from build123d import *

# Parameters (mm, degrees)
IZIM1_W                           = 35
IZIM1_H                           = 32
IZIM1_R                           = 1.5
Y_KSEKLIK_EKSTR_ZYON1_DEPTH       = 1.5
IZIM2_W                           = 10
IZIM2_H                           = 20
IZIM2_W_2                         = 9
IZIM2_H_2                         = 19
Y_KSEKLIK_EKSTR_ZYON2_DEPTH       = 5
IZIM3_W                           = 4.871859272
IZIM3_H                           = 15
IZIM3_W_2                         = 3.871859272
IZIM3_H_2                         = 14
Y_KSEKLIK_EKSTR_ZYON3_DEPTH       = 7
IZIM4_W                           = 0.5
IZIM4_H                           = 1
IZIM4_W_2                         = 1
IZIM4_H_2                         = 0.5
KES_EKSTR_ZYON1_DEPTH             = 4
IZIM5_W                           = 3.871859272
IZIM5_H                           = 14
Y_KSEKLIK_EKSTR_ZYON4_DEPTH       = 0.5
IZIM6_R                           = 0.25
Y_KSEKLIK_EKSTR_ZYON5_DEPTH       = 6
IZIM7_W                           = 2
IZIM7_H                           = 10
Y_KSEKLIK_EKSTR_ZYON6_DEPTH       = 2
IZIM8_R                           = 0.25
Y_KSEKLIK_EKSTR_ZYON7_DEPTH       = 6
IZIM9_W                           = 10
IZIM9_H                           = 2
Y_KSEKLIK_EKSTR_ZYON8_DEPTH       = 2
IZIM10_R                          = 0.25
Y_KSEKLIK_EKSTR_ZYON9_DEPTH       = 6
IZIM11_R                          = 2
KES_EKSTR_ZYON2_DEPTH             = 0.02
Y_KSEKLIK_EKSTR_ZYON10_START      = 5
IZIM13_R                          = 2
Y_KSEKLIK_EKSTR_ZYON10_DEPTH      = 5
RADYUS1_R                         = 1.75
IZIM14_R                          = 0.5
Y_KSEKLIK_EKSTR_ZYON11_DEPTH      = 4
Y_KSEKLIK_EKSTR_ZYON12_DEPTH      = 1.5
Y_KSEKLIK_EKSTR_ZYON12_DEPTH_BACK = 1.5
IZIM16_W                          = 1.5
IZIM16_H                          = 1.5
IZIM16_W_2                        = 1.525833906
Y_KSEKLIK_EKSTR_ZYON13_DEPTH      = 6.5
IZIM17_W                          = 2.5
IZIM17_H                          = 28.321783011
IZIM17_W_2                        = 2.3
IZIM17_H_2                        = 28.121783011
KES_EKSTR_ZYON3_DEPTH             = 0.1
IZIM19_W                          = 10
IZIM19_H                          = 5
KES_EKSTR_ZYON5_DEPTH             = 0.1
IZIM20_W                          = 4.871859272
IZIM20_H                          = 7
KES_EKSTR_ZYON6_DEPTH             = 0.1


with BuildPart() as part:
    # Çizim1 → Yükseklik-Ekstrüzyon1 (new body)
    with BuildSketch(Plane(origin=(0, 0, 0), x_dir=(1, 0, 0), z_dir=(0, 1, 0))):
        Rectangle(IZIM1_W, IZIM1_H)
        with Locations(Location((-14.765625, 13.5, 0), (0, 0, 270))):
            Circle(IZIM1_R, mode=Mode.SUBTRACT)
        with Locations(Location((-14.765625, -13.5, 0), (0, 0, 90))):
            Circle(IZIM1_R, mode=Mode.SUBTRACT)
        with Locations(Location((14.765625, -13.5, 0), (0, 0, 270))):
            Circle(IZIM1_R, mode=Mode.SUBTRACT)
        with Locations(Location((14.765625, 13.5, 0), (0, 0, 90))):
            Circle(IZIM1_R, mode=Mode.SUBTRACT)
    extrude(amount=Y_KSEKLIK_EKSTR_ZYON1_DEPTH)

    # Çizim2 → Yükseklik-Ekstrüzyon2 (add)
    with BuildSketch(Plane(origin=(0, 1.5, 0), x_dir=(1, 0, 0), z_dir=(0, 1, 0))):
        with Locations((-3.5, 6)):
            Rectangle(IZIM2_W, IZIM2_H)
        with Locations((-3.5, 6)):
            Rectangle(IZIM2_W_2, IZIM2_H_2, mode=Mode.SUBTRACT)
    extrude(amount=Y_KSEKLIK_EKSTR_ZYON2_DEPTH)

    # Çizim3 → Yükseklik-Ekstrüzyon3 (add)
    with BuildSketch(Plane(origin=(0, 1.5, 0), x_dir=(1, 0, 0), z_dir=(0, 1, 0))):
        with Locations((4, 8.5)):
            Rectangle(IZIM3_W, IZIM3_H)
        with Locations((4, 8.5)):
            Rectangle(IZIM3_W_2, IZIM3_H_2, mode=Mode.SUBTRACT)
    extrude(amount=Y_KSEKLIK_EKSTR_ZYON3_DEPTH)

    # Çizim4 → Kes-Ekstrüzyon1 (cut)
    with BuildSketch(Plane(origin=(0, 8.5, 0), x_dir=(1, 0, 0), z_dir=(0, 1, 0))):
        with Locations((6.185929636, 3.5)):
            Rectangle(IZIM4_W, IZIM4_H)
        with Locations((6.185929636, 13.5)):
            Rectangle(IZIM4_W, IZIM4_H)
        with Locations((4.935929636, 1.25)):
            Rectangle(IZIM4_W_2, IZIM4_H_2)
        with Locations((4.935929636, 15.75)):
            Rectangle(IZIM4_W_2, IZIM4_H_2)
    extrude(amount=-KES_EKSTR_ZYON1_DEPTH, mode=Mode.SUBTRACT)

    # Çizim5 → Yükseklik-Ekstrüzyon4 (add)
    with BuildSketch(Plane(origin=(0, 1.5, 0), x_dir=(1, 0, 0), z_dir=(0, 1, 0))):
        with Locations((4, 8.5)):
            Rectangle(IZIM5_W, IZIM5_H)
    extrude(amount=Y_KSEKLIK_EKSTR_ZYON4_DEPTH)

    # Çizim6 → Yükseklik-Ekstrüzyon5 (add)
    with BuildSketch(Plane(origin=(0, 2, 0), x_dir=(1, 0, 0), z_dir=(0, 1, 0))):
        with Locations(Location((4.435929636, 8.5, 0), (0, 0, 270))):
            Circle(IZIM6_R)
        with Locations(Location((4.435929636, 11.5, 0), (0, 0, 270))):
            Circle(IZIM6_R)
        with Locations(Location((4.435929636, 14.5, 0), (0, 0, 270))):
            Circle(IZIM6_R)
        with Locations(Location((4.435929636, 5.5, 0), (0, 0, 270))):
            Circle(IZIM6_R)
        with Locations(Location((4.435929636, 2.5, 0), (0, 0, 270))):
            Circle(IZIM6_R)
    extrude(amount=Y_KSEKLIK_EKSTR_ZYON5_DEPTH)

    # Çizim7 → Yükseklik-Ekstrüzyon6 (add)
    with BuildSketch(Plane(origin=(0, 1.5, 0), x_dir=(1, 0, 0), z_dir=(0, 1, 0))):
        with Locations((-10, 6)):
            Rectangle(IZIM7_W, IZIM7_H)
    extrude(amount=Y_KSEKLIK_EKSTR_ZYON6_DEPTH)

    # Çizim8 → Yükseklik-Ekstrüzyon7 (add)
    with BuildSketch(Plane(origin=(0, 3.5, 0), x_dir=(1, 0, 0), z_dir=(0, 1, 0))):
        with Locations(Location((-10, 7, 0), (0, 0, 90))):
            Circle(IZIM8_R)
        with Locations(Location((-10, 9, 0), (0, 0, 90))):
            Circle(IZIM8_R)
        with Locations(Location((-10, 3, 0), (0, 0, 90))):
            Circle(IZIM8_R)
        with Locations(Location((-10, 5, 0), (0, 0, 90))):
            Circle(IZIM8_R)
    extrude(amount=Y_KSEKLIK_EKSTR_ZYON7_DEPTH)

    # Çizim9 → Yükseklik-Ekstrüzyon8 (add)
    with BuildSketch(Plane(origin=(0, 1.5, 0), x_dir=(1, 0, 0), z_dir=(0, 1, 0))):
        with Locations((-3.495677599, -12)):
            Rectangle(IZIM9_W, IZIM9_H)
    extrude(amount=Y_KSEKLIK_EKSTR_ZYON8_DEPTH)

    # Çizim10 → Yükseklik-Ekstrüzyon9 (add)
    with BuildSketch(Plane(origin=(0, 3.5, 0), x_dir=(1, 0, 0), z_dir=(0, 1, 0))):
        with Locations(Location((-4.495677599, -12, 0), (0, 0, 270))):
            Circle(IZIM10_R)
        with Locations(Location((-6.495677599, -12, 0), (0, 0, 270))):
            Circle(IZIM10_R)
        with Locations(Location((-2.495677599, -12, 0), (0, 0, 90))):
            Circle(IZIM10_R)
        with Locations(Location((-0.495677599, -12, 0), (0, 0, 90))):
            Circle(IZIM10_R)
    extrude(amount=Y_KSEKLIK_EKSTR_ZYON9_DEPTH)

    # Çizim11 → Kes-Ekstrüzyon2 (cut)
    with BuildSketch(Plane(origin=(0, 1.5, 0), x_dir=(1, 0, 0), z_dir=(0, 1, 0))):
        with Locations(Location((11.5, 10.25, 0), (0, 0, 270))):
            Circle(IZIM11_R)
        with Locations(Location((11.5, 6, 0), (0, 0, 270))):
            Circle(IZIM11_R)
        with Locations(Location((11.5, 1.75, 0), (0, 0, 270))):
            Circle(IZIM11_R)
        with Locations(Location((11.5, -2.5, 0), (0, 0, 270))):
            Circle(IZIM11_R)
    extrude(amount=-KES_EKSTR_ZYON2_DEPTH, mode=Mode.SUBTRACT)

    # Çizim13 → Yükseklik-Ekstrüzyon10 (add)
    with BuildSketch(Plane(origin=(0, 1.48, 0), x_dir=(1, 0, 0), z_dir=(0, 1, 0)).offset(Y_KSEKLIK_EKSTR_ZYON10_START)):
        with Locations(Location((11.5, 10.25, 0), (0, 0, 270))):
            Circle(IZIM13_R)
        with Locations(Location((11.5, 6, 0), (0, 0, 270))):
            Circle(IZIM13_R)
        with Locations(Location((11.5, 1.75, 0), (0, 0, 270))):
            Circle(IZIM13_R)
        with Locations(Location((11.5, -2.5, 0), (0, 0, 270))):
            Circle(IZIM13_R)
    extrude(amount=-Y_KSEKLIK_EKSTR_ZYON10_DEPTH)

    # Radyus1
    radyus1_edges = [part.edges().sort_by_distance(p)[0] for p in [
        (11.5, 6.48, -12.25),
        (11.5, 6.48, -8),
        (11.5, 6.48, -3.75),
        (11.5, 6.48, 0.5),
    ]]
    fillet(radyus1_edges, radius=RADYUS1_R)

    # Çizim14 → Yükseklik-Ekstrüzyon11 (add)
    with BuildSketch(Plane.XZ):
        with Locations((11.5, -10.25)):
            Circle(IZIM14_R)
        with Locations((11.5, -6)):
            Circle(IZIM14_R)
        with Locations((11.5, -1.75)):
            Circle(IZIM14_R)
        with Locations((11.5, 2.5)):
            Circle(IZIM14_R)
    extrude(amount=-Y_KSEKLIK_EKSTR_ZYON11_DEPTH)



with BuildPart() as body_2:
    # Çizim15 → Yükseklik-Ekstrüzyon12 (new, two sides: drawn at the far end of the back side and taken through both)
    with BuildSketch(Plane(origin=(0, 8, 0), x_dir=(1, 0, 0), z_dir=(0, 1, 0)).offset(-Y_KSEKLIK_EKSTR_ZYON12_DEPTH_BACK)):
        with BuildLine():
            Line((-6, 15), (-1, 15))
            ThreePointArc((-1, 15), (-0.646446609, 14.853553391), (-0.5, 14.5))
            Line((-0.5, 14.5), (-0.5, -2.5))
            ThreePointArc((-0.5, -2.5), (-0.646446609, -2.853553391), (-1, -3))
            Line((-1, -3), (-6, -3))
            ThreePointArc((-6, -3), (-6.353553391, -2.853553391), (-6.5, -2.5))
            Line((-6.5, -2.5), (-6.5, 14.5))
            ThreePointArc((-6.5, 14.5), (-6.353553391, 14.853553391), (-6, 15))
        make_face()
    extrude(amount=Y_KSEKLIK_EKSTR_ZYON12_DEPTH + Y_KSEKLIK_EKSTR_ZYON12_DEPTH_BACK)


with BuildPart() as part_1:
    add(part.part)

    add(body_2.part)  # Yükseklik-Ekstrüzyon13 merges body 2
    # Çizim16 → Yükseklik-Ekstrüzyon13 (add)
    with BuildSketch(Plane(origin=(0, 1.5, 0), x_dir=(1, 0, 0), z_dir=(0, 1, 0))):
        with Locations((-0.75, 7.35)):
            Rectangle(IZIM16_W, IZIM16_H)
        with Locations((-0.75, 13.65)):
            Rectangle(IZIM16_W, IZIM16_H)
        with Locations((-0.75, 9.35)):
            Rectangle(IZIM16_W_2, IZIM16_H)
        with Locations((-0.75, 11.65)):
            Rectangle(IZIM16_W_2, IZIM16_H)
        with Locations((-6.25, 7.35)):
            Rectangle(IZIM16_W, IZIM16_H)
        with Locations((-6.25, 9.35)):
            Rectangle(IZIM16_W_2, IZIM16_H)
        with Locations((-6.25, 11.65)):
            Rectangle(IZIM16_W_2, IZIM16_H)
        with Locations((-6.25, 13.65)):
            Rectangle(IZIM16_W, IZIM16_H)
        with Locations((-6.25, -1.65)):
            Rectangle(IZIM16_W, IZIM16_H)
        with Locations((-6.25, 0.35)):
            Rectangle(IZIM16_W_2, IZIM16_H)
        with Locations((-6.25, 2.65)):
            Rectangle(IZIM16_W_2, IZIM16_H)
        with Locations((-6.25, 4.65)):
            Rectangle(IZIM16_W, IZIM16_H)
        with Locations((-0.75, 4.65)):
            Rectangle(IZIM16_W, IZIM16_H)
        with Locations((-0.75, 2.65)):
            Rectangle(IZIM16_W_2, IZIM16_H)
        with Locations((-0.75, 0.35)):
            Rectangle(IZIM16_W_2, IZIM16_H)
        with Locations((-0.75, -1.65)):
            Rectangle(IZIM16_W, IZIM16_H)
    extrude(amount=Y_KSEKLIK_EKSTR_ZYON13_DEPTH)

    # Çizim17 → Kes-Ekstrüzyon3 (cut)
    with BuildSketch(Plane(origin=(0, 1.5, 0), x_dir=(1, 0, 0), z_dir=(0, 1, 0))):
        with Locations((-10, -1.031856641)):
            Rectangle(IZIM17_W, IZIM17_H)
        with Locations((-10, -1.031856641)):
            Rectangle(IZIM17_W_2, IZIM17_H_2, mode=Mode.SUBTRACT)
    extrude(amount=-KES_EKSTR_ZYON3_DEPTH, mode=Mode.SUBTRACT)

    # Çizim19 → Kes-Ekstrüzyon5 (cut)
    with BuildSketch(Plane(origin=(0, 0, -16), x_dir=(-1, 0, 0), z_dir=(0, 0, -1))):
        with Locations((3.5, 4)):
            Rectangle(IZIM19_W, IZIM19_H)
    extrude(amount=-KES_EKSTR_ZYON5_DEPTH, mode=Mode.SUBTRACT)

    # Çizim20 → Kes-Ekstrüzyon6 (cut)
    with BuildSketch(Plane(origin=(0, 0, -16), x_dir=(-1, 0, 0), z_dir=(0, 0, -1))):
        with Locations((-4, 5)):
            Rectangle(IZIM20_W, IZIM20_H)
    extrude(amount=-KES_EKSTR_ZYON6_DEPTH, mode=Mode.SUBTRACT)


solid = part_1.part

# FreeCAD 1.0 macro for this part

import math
import FreeCAD as App
import Part
import Sketcher
from FreeCAD import Vector
Q = App.Units.Quantity


def edges_at(feature, points):
    """Names of the edges that pass closest to the given points."""
    edges = feature.Shape.Edges
    near = lambda p: min(range(len(edges)), key=lambda i: edges[i].distToShape(Part.Vertex(*p))[0])
    return sorted({f"Edge{near(p) + 1}" for p in points})


def add_polygon(sketch, points):
    """Adds a closed chain of lines whose ends are joined by coincident constraints."""
    first, n = sketch.GeometryCount, len(points)
    for a, b in zip(points, points[1:] + points[:1]):
        sketch.addGeometry(Part.LineSegment(App.Vector(*a, 0), App.Vector(*b, 0)), False)
    for i in range(n):
        sketch.addConstraint(Sketcher.Constraint("Coincident", first + i, 2, first + (i + 1) % n, 1))

doc = App.newDocument("Part")
body = doc.addObject("PartDesign::Body", "Body")

# Sketch on XZ plane
sketch1 = body.newObject("Sketcher::SketchObject", "Sketch")
sketch1.AttachmentSupport = (doc.getObject("XZ_Plane"), [""])
sketch1.MapMode = "FlatFace"
add_polygon(sketch1, [(-17.5, -16), (-17.5, 16), (17.5, 16), (17.5, -16)])  # lines 0-3
sketch1.addGeometry(Part.Circle(Vector(-14.8, 13.5, 0), Vector(0, 0, 1), 1.5), False)  # 4
sketch1.addGeometry(Part.Circle(Vector(14.8, 13.5, 0), Vector(0, 0, 1), 1.5), False)  # 5
sketch1.addGeometry(Part.Circle(Vector(-14.8, -13.5, 0), Vector(0, 0, 1), 1.5), False)  # 6
sketch1.addGeometry(Part.Circle(Vector(14.8, -13.5, 0), Vector(0, 0, 1), 1.5), False)  # 7
sketch1.addConstraint([
    Sketcher.Constraint("Vertical", 0),
    Sketcher.Constraint("Horizontal", 1),
    Sketcher.Constraint("Vertical", 2),
    Sketcher.Constraint("Horizontal", 3),
    Sketcher.Constraint("Equal", 4, 5),
    Sketcher.Constraint("Equal", 5, 6),
    Sketcher.Constraint("Equal", 6, 7),
    Sketcher.Constraint("Symmetric", 5, 3, 6, 3, -1, 1),
    Sketcher.Constraint("Symmetric", 4, 3, 7, 3, -1, 1),
    Sketcher.Constraint("Symmetric", 0, 2, 2, 2, -1, 1),
    Sketcher.Constraint("Symmetric", 4, 3, 5, 3, -2),
    Sketcher.Constraint("Diameter", 4, Q("3 mm")),
    Sketcher.Constraint("DistanceX", 1, 1, 1, 2, Q("35 mm")),
    Sketcher.Constraint("DistanceY", 0, 1, 0, 2, Q("32 mm")),
    Sketcher.Constraint("DistanceY", 6, 3, 4, 3, Q("27 mm")),
    Sketcher.Constraint("DistanceX", 4, 3, 5, 3, Q("29.53125 mm")),
])
pad1 = body.newObject("PartDesign::Pad", "Pad")
pad1.Profile = sketch1
pad1.Length = 1.5
pad1.Reversed = True

# Sketch on XZ plane
sketch2 = body.newObject("Sketcher::SketchObject", "Sketch001")
sketch2.AttachmentSupport = (doc.getObject("XZ_Plane"), [""])
sketch2.MapMode = "FlatFace"
sketch2.AttachmentOffset = App.Placement(Vector(0, 0, -1.5), App.Rotation())
add_polygon(sketch2, [(-8, -16), (-8, 4), (2, 4), (2, -16)])  # lines 0-3
add_polygon(sketch2, [(1, 4), (-8, 4), (-8, -16), (1, -16)])  # lines 4-7
sketch2.addConstraint([
    Sketcher.Constraint("Vertical", 0),
    Sketcher.Constraint("Horizontal", 1),
    Sketcher.Constraint("Vertical", 2),
    Sketcher.Constraint("Horizontal", 3),
    Sketcher.Constraint("Horizontal", 4),
    Sketcher.Constraint("Vertical", 5),
    Sketcher.Constraint("Horizontal", 6),
    Sketcher.Constraint("Vertical", 7),
    Sketcher.Constraint("DistanceX", 1, 1, 1, 2, Q("10 mm")),
    Sketcher.Constraint("DistanceX", 4, 2, 4, 1, Q("9 mm")),
    Sketcher.Constraint("DistanceY", 0, 1, 0, 2, Q("20 mm")),
    Sketcher.Constraint("DistanceY", 5, 2, 5, 1, Q("19 mm")),
    Sketcher.Constraint("DistanceY", -1, 1, 0, 2, Q("4 mm")),
    Sketcher.Constraint("DistanceX", 4, 2, -1, 1, Q("8 mm")),
    Sketcher.Constraint("DistanceX", 0, 2, -1, 1, Q("8.5 mm")),
    Sketcher.Constraint("DistanceY", -1, 1, 4, 2, Q("3.5 mm")),
])
pad2 = body.newObject("PartDesign::Pad", "Pad001")
pad2.Profile = sketch2
pad2.Length = 5
pad2.Reversed = True

# Sketch on XZ plane
sketch3 = body.newObject("Sketcher::SketchObject", "Sketch002")
sketch3.AttachmentSupport = (doc.getObject("XZ_Plane"), [""])
sketch3.MapMode = "FlatFace"
sketch3.AttachmentOffset = App.Placement(Vector(0, 0, -1.5), App.Rotation())
add_polygon(sketch3, [(1.6, -16), (1.6, -1), (6.4, -1), (6.4, -16)])  # lines 0-3
add_polygon(sketch3, [(5.9, -1.5), (2.1, -1.5), (2.1, -15.5), (5.9, -15.5)])  # lines 4-7
sketch3.addConstraint([
    Sketcher.Constraint("Vertical", 0),
    Sketcher.Constraint("Horizontal", 1),
    Sketcher.Constraint("Vertical", 2),
    Sketcher.Constraint("Horizontal", 3),
    Sketcher.Constraint("Horizontal", 4),
    Sketcher.Constraint("Vertical", 5),
    Sketcher.Constraint("Horizontal", 6),
    Sketcher.Constraint("Vertical", 7),
    Sketcher.Constraint("DistanceY", 0, 1, 0, 2, Q("15 mm")),
    Sketcher.Constraint("DistanceY", 5, 2, 5, 1, Q("14 mm")),
    Sketcher.Constraint("DistanceY", 0, 2, -1, 1, Q("1 mm")),
    Sketcher.Constraint("DistanceY", 4, 2, -1, 1, Q("1.5 mm")),
    Sketcher.Constraint("DistanceX", 0, 2, 4, 2, Q("0.5 mm")),
    Sketcher.Constraint("DistanceX", 6, 2, 2, 2, Q("0.5 mm")),
    Sketcher.Constraint("DistanceX", 1, 1, 1, 2, Q("4.871859 mm")),
    Sketcher.Constraint("DistanceX", -1, 1, 0, 2, Q("1.56407 mm")),
])
pad3 = body.newObject("PartDesign::Pad", "Pad002")
pad3.Profile = sketch3
pad3.Length = 7
pad3.Reversed = True

# Sketch on XZ plane
sketch4 = body.newObject("Sketcher::SketchObject", "Sketch003")
sketch4.AttachmentSupport = (doc.getObject("XZ_Plane"), [""])
sketch4.MapMode = "FlatFace"
sketch4.AttachmentOffset = App.Placement(Vector(0, 0, -8.5), App.Rotation())
add_polygon(sketch4, [(5.9, -4), (5.9, -3), (6.4, -3), (6.4, -4)])  # lines 0-3
add_polygon(sketch4, [(5.9, -14), (5.9, -13), (6.4, -13), (6.4, -14)])  # lines 4-7
add_polygon(sketch4, [(4.4, -1.5), (4.4, -1), (5.4, -1), (5.4, -1.5)])  # lines 8-11
add_polygon(sketch4, [(4.4, -16), (4.4, -15.5), (5.4, -15.5), (5.4, -16)])  # lines 12-15
sketch4.addConstraint([
    Sketcher.Constraint("Vertical", 0),
    Sketcher.Constraint("Horizontal", 1),
    Sketcher.Constraint("Vertical", 2),
    Sketcher.Constraint("Horizontal", 3),
    Sketcher.Constraint("Vertical", 4),
    Sketcher.Constraint("Horizontal", 5),
    Sketcher.Constraint("Vertical", 6),
    Sketcher.Constraint("Horizontal", 7),
    Sketcher.Constraint("Vertical", 8),
    Sketcher.Constraint("Horizontal", 9),
    Sketcher.Constraint("Vertical", 10),
    Sketcher.Constraint("Horizontal", 11),
    Sketcher.Constraint("Vertical", 12),
    Sketcher.Constraint("Horizontal", 13),
    Sketcher.Constraint("Vertical", 14),
    Sketcher.Constraint("Horizontal", 15),
    Sketcher.Constraint("Vertical", 3, 2, 4, 2),
    Sketcher.Constraint("Vertical", 2, 2, 5, 2),
    Sketcher.Constraint("Vertical", 11, 2, 12, 2),
    Sketcher.Constraint("Vertical", 10, 2, 13, 2),
    Sketcher.Constraint("Equal", 15, 0),
    Sketcher.Constraint("Equal", 2, 4),
    Sketcher.Constraint("Equal", 7, 8),
    Sketcher.Constraint("Equal", 10, 12),
    Sketcher.Constraint("DistanceX", 9, 1, 9, 2, Q("1 mm")),
    Sketcher.Constraint("DistanceX", 1, 1, 1, 2, Q("0.5 mm")),
    Sketcher.Constraint("DistanceY", 0, 2, -1, 1, Q("3 mm")),
    Sketcher.Constraint("DistanceY", 4, 2, -1, 1, Q("13 mm")),
    Sketcher.Constraint("DistanceY", 8, 2, -1, 1, Q("1 mm")),
    Sketcher.Constraint("DistanceY", 14, 2, -1, 1, Q("16 mm")),
    Sketcher.Constraint("DistanceX", 8, 2, 1, 2, Q("2 mm")),
    Sketcher.Constraint("DistanceX", -1, 1, 0, 2, Q("5.93593 mm")),
])
pocket1 = body.newObject("PartDesign::Pocket", "Pocket")
pocket1.Profile = sketch4
pocket1.Length = 4
pocket1.Reversed = True

# Sketch on XZ plane
sketch5 = body.newObject("Sketcher::SketchObject", "Sketch004")
sketch5.AttachmentSupport = (doc.getObject("XZ_Plane"), [""])
sketch5.MapMode = "FlatFace"
sketch5.AttachmentOffset = App.Placement(Vector(0, 0, -1.5), App.Rotation())
add_polygon(sketch5, [(2.1, -15.5), (2.1, -1.5), (5.9, -1.5), (5.9, -15.5)])  # lines 0-3
sketch5.addConstraint([
    Sketcher.Constraint("Vertical", 0),
    Sketcher.Constraint("Horizontal", 1),
    Sketcher.Constraint("Vertical", 2),
    Sketcher.Constraint("Horizontal", 3),
    Sketcher.Constraint("DistanceY", 0, 1, 0, 2, Q("14 mm")),
    Sketcher.Constraint("DistanceY", 0, 2, -1, 1, Q("1.5 mm")),
    Sketcher.Constraint("DistanceX", 1, 1, 1, 2, Q("3.871859 mm")),
    Sketcher.Constraint("DistanceX", -1, 1, 0, 2, Q("2.06407 mm")),
])
pad4 = body.newObject("PartDesign::Pad", "Pad003")
pad4.Profile = sketch5
pad4.Length = 0.5
pad4.Reversed = True

# Sketch on XZ plane
sketch6 = body.newObject("Sketcher::SketchObject", "Sketch005")
sketch6.AttachmentSupport = (doc.getObject("XZ_Plane"), [""])
sketch6.MapMode = "FlatFace"
sketch6.AttachmentOffset = App.Placement(Vector(0, 0, -2), App.Rotation())
sketch6.addGeometry([
    Part.Circle(Vector(4.44, -8.5, 0), Vector(0, 0, 1), 0.25),  # 0
    Part.Circle(Vector(4.44, -11.5, 0), Vector(0, 0, 1), 0.25),  # 1
    Part.Circle(Vector(4.44, -14.5, 0), Vector(0, 0, 1), 0.25),  # 2
    Part.Circle(Vector(4.44, -5.5, 0), Vector(0, 0, 1), 0.25),  # 3
    Part.Circle(Vector(4.44, -2.5, 0), Vector(0, 0, 1), 0.25),  # 4
], False)
sketch6.addConstraint([
    Sketcher.Constraint("Equal", 0, 1),
    Sketcher.Constraint("Equal", 1, 2),
    Sketcher.Constraint("Equal", 2, 3),
    Sketcher.Constraint("Equal", 3, 4),
    Sketcher.Constraint("Vertical", 0, 3, 1, 3),
    Sketcher.Constraint("Vertical", 1, 3, 2, 3),
    Sketcher.Constraint("Vertical", 2, 3, 3, 3),
    Sketcher.Constraint("Vertical", 3, 3, 4, 3),
    Sketcher.Constraint("Diameter", 0, Q("0.5 mm")),
    Sketcher.Constraint("DistanceY", 1, 3, 0, 3, Q("3 mm")),
    Sketcher.Constraint("DistanceY", 2, 3, 1, 3, Q("3 mm")),
    Sketcher.Constraint("DistanceY", 0, 3, 3, 3, Q("3 mm")),
    Sketcher.Constraint("DistanceY", 3, 3, 4, 3, Q("3 mm")),
    Sketcher.Constraint("DistanceY", 0, 3, -1, 1, Q("8.5 mm")),
    Sketcher.Constraint("DistanceX", -1, 1, 0, 3, Q("4.43593 mm")),
])
pad5 = body.newObject("PartDesign::Pad", "Pad004")
pad5.Profile = sketch6
pad5.Length = 6
pad5.Reversed = True

# Sketch on XZ plane
sketch7 = body.newObject("Sketcher::SketchObject", "Sketch006")
sketch7.AttachmentSupport = (doc.getObject("XZ_Plane"), [""])
sketch7.MapMode = "FlatFace"
sketch7.AttachmentOffset = App.Placement(Vector(0, 0, -1.5), App.Rotation())
add_polygon(sketch7, [(-11, -11), (-11, -1), (-9, -1), (-9, -11)])  # lines 0-3
sketch7.addConstraint([
    Sketcher.Constraint("Vertical", 0),
    Sketcher.Constraint("Horizontal", 1),
    Sketcher.Constraint("Vertical", 2),
    Sketcher.Constraint("Horizontal", 3),
    Sketcher.Constraint("DistanceX", 1, 1, 1, 2, Q("2 mm")),
    Sketcher.Constraint("DistanceY", 0, 1, 0, 2, Q("10 mm")),
    Sketcher.Constraint("DistanceX", 0, 2, -1, 1, Q("11 mm")),
    Sketcher.Constraint("DistanceY", 0, 2, -1, 1, Q("1 mm")),
])
pad6 = body.newObject("PartDesign::Pad", "Pad005")
pad6.Profile = sketch7
pad6.Length = 2
pad6.Reversed = True

# Sketch on XZ plane
sketch8 = body.newObject("Sketcher::SketchObject", "Sketch007")
sketch8.AttachmentSupport = (doc.getObject("XZ_Plane"), [""])
sketch8.MapMode = "FlatFace"
sketch8.AttachmentOffset = App.Placement(Vector(0, 0, -3.5), App.Rotation())
sketch8.addGeometry([
    Part.Circle(Vector(-10, -7, 0), Vector(0, 0, 1), 0.25),
    Part.Circle(Vector(-10, -9, 0), Vector(0, 0, 1), 0.25),
    Part.Circle(Vector(-10, -3, 0), Vector(0, 0, 1), 0.25),
    Part.Circle(Vector(-10, -5, 0), Vector(0, 0, 1), 0.25),
], False)
sketch8.addConstraint([
    Sketcher.Constraint("Equal", 0, 1),
    Sketcher.Constraint("Equal", 1, 2),
    Sketcher.Constraint("Equal", 2, 3),
    Sketcher.Constraint("Vertical", 0, 3, 1, 3),
    Sketcher.Constraint("Vertical", 1, 3, 2, 3),
    Sketcher.Constraint("Vertical", 2, 3, 3, 3),
    Sketcher.Constraint("Diameter", 0, Q("0.5 mm")),
    Sketcher.Constraint("DistanceX", 0, 3, -1, 1, Q("10 mm")),
    Sketcher.Constraint("DistanceY", 0, 3, -1, 1, Q("7 mm")),
    Sketcher.Constraint("DistanceY", 1, 3, -1, 1, Q("9 mm")),
    Sketcher.Constraint("DistanceY", 2, 3, -1, 1, Q("3 mm")),
    Sketcher.Constraint("DistanceY", 3, 3, -1, 1, Q("5 mm")),
])
pad7 = body.newObject("PartDesign::Pad", "Pad006")
pad7.Profile = sketch8
pad7.Length = 6
pad7.Reversed = True

# Sketch on XZ plane
sketch9 = body.newObject("Sketcher::SketchObject", "Sketch008")
sketch9.AttachmentSupport = (doc.getObject("XZ_Plane"), [""])
sketch9.MapMode = "FlatFace"
sketch9.AttachmentOffset = App.Placement(Vector(0, 0, -1.5), App.Rotation())
add_polygon(sketch9, [(-8.5, 11), (-8.5, 13), (1.5, 13), (1.5, 11)])  # lines 0-3
sketch9.addConstraint([
    Sketcher.Constraint("Vertical", 0),
    Sketcher.Constraint("Horizontal", 1),
    Sketcher.Constraint("Vertical", 2),
    Sketcher.Constraint("Horizontal", 3),
    Sketcher.Constraint("DistanceX", 1, 1, 1, 2, Q("10 mm")),
    Sketcher.Constraint("DistanceY", 0, 1, 0, 2, Q("2 mm")),
    Sketcher.Constraint("DistanceY", -1, 1, 0, 2, Q("13 mm")),
    Sketcher.Constraint("DistanceX", 0, 2, -1, 1, Q("8.495678 mm")),
])
pad8 = body.newObject("PartDesign::Pad", "Pad007")
pad8.Profile = sketch9
pad8.Length = 2
pad8.Reversed = True

# Sketch on XZ plane
sketch10 = body.newObject("Sketcher::SketchObject", "Sketch009")
sketch10.AttachmentSupport = (doc.getObject("XZ_Plane"), [""])
sketch10.MapMode = "FlatFace"
sketch10.AttachmentOffset = App.Placement(Vector(0, 0, -3.5), App.Rotation())
sketch10.addGeometry([
    Part.Circle(Vector(-4.5, 12, 0), Vector(0, 0, 1), 0.25),
    Part.Circle(Vector(-6.5, 12, 0), Vector(0, 0, 1), 0.25),
    Part.Circle(Vector(-2.5, 12, 0), Vector(0, 0, 1), 0.25),
    Part.Circle(Vector(-0.5, 12, 0), Vector(0, 0, 1), 0.25),
], False)
sketch10.addConstraint([
    Sketcher.Constraint("Equal", 0, 1),
    Sketcher.Constraint("Equal", 1, 2),
    Sketcher.Constraint("Equal", 2, 3),
    Sketcher.Constraint("Horizontal", 0, 3, 1, 3),
    Sketcher.Constraint("Horizontal", 1, 3, 2, 3),
    Sketcher.Constraint("Horizontal", 2, 3, 3, 3),
    Sketcher.Constraint("Diameter", 0, Q("0.5 mm")),
    Sketcher.Constraint("DistanceY", -1, 1, 0, 3, Q("12 mm")),
    Sketcher.Constraint("DistanceX", 1, 3, 0, 3, Q("2 mm")),
    Sketcher.Constraint("DistanceX", 0, 3, 2, 3, Q("2 mm")),
    Sketcher.Constraint("DistanceX", 2, 3, 3, 3, Q("2 mm")),
    Sketcher.Constraint("DistanceX", 0, 3, -1, 1, Q("4.495678 mm")),
])
pad9 = body.newObject("PartDesign::Pad", "Pad008")
pad9.Profile = sketch10
pad9.Length = 6
pad9.Reversed = True

# Sketch on XZ plane
sketch11 = body.newObject("Sketcher::SketchObject", "Sketch010")
sketch11.AttachmentSupport = (doc.getObject("XZ_Plane"), [""])
sketch11.MapMode = "FlatFace"
sketch11.AttachmentOffset = App.Placement(Vector(0, 0, -1.5), App.Rotation())
sketch11.addGeometry([
    Part.Circle(Vector(11.5, -10.2, 0), Vector(0, 0, 1), 2),
    Part.Circle(Vector(11.5, -6, 0), Vector(0, 0, 1), 2),
    Part.Circle(Vector(11.5, -1.8, 0), Vector(0, 0, 1), 2),
    Part.Circle(Vector(11.5, 2.5, 0), Vector(0, 0, 1), 2),
], False)
sketch11.addConstraint([
    Sketcher.Constraint("Equal", 0, 1),
    Sketcher.Constraint("Equal", 1, 2),
    Sketcher.Constraint("Equal", 2, 3),
    Sketcher.Constraint("Vertical", 0, 3, 1, 3),
    Sketcher.Constraint("Vertical", 1, 3, 2, 3),
    Sketcher.Constraint("Vertical", 2, 3, 3, 3),
    Sketcher.Constraint("Diameter", 0, Q("4 mm")),
    Sketcher.Constraint("DistanceY", 1, 3, -1, 1, Q("6 mm")),
    Sketcher.Constraint("DistanceX", -1, 1, 0, 3, Q("11.5 mm")),
    Sketcher.Constraint("DistanceY", -1, 1, 3, 3, Q("2.5 mm")),
    Sketcher.Constraint("DistanceY", 0, 3, 2, 3, Q("8.5 mm")),
    Sketcher.Constraint("DistanceY", 0, 3, -1, 1, Q("10.25 mm")),
])
pocket2 = body.newObject("PartDesign::Pocket", "Pocket001")
pocket2.Profile = sketch11
pocket2.Length = 0.02
pocket2.Reversed = True

# Sketch on XZ plane
sketch12 = body.newObject("Sketcher::SketchObject", "Sketch011")
sketch12.AttachmentSupport = (doc.getObject("XZ_Plane"), [""])
sketch12.MapMode = "FlatFace"
sketch12.AttachmentOffset = App.Placement(Vector(0, 0, -6.48), App.Rotation())
sketch12.addGeometry([
    Part.Circle(Vector(11.5, -10.2, 0), Vector(0, 0, 1), 2),
    Part.Circle(Vector(11.5, -6, 0), Vector(0, 0, 1), 2),
    Part.Circle(Vector(11.5, -1.8, 0), Vector(0, 0, 1), 2),
    Part.Circle(Vector(11.5, 2.5, 0), Vector(0, 0, 1), 2),
], False)
sketch12.addConstraint([
    Sketcher.Constraint("Equal", 0, 1),
    Sketcher.Constraint("Equal", 1, 2),
    Sketcher.Constraint("Equal", 2, 3),
    Sketcher.Constraint("Vertical", 0, 3, 1, 3),
    Sketcher.Constraint("Vertical", 1, 3, 2, 3),
    Sketcher.Constraint("Vertical", 2, 3, 3, 3),
    Sketcher.Constraint("Diameter", 0, Q("4 mm")),
    Sketcher.Constraint("DistanceY", 1, 3, -1, 1, Q("6 mm")),
    Sketcher.Constraint("DistanceX", -1, 1, 0, 3, Q("11.5 mm")),
    Sketcher.Constraint("DistanceY", -1, 1, 3, 3, Q("2.5 mm")),
    Sketcher.Constraint("DistanceY", 0, 3, 2, 3, Q("8.5 mm")),
    Sketcher.Constraint("DistanceY", 0, 3, -1, 1, Q("10.25 mm")),
])
pad10 = body.newObject("PartDesign::Pad", "Pad009")
pad10.Profile = sketch12
pad10.Length = 5
doc.recompute()

fillet = body.newObject("PartDesign::Fillet", "Fillet")
fillet.Base = (pad10, edges_at(pad10, [
    (11.5, 6.48, -12.25),
    (11.5, 6.48, -8),
    (11.5, 6.48, -3.75),
    (11.5, 6.48, 0.5),
]))
fillet.Radius = 1.75

# Sketch on XZ plane
sketch13 = body.newObject("Sketcher::SketchObject", "Sketch012")
sketch13.AttachmentSupport = (doc.getObject("XZ_Plane"), [""])
sketch13.MapMode = "FlatFace"
sketch13.addGeometry([
    Part.Circle(Vector(11.5, -10.2, 0), Vector(0, 0, 1), 0.5),
    Part.Circle(Vector(11.5, -6, 0), Vector(0, 0, 1), 0.5),
    Part.Circle(Vector(11.5, -1.8, 0), Vector(0, 0, 1), 0.5),
    Part.Circle(Vector(11.5, 2.5, 0), Vector(0, 0, 1), 0.5),
], False)
sketch13.addConstraint([
    Sketcher.Constraint("Equal", 0, 1),
    Sketcher.Constraint("Equal", 1, 2),
    Sketcher.Constraint("Equal", 2, 3),
    Sketcher.Constraint("Vertical", 0, 3, 1, 3),
    Sketcher.Constraint("Vertical", 1, 3, 2, 3),
    Sketcher.Constraint("Vertical", 2, 3, 3, 3),
    Sketcher.Constraint("Diameter", 0, Q("1 mm")),
    Sketcher.Constraint("DistanceY", 1, 3, -1, 1, Q("6 mm")),
    Sketcher.Constraint("DistanceX", -1, 1, 0, 3, Q("11.5 mm")),
    Sketcher.Constraint("DistanceY", -1, 1, 3, 3, Q("2.5 mm")),
    Sketcher.Constraint("DistanceY", 0, 3, 2, 3, Q("8.5 mm")),
    Sketcher.Constraint("DistanceY", 0, 3, -1, 1, Q("10.25 mm")),
])
pad11 = body.newObject("PartDesign::Pad", "Pad010")
pad11.Profile = sketch13
pad11.Length = 4
pad11.Reversed = True
body2 = doc.addObject("PartDesign::Body", "Body001")

# Sketch on XZ plane
sketch14 = body2.newObject("Sketcher::SketchObject", "Sketch013")
sketch14.AttachmentSupport = (doc.getObject("XZ_Plane001"), [""])
sketch14.MapMode = "FlatFace"
sketch14.AttachmentOffset = App.Placement(Vector(0, 0, -8), App.Rotation())
sketch14.addGeometry([
    Part.LineSegment(Vector(-1, -15, 0), Vector(-6, -15, 0)),  # 0
    Part.ArcOfCircle(Part.Circle(Vector(-6, -14.5, 0), Vector(0, 0, 1), 0.5), math.radians(180), math.radians(270)),  # 1
    Part.LineSegment(Vector(-6.5, -14.5, 0), Vector(-6.5, 2.5, 0)),  # 2
    Part.ArcOfCircle(Part.Circle(Vector(-6, 2.5, 0), Vector(0, 0, 1), 0.5), math.radians(90), math.radians(180)),  # 3
    Part.LineSegment(Vector(-6, 3, 0), Vector(-1, 3, 0)),  # 4
    Part.ArcOfCircle(Part.Circle(Vector(-1, 2.5, 0), Vector(0, 0, 1), 0.5), math.radians(0), math.radians(90)),  # 5
    Part.LineSegment(Vector(-0.5, 2.5, 0), Vector(-0.5, -14.5, 0)),  # 6
    Part.ArcOfCircle(Part.Circle(Vector(-1, -14.5, 0), Vector(0, 0, 1), 0.5), math.radians(-90), math.radians(0)),  # 7
], False)
sketch14.addConstraint([
    Sketcher.Constraint("Tangent", 0, 2, 1, 2),
    Sketcher.Constraint("Tangent", 1, 1, 2, 1),
    Sketcher.Constraint("Tangent", 2, 2, 3, 2),
    Sketcher.Constraint("Tangent", 3, 1, 4, 1),
    Sketcher.Constraint("Tangent", 4, 2, 5, 2),
    Sketcher.Constraint("Tangent", 5, 1, 6, 1),
    Sketcher.Constraint("Tangent", 6, 2, 7, 2),
    Sketcher.Constraint("Tangent", 7, 1, 0, 1),
    Sketcher.Constraint("Horizontal", 0),
    Sketcher.Constraint("Vertical", 2),
    Sketcher.Constraint("Horizontal", 4),
    Sketcher.Constraint("Vertical", 6),
    Sketcher.Constraint("Equal", 1, 3),
    Sketcher.Constraint("Equal", 3, 5),
    Sketcher.Constraint("Equal", 5, 7),
    Sketcher.Constraint("Radius", 1, Q("0.5 mm")),
    Sketcher.Constraint("DistanceX", 0, 2, 0, 1, Q("5 mm")),
    Sketcher.Constraint("DistanceY", 2, 1, 2, 2, Q("17 mm")),
    Sketcher.Constraint("DistanceX", 1, 3, -1, 1, Q("6 mm")),
    Sketcher.Constraint("DistanceY", 0, 2, -1, 1, Q("15 mm")),
])
pad12 = body2.newObject("PartDesign::Pad", "Pad011")
pad12.Profile = sketch14
pad12.Type = "TwoLengths"
pad12.Length = 1.5
pad12.Length2 = 1.5
pad12.Reversed = True
body.AllowCompound = True
doc.recompute()

boolean = body.newObject("PartDesign::Boolean", "Boolean")
boolean.Type = "Fuse"
boolean.addObjects([body2])

# Sketch on XZ plane
sketch15 = body.newObject("Sketcher::SketchObject", "Sketch014")
sketch15.AttachmentSupport = (doc.getObject("XZ_Plane"), [""])
sketch15.MapMode = "FlatFace"
sketch15.AttachmentOffset = App.Placement(Vector(0, 0, -1.5), App.Rotation())
add_polygon(sketch15, [(-1.5, -8.1), (-1.5, -6.6), (0, -6.6), (0, -8.1)])  # lines 0-3
add_polygon(sketch15, [(-1.5, -14.4), (-1.5, -12.9), (0, -12.9), (0, -14.4)])  # lines 4-7
add_polygon(sketch15, [(-1.5, -10.1), (-1.5, -8.6), (0, -8.6), (0, -10.1)])  # lines 8-11
add_polygon(sketch15, [(-1.5, -12.4), (-1.5, -10.9), (0, -10.9), (0, -12.4)])  # lines 12-15
add_polygon(sketch15, [(-7, -8.1), (-7, -6.6), (-5.5, -6.6), (-5.5, -8.1)])  # lines 16-19
add_polygon(sketch15, [(-7, -10.1), (-7, -8.6), (-5.5, -8.6), (-5.5, -10.1)])  # lines 20-23
add_polygon(sketch15, [(-7, -12.4), (-7, -10.9), (-5.5, -10.9), (-5.5, -12.4)])  # lines 24-27
add_polygon(sketch15, [(-7, -14.4), (-7, -12.9), (-5.5, -12.9), (-5.5, -14.4)])  # lines 28-31
add_polygon(sketch15, [(-7, 0.9), (-7, 2.4), (-5.5, 2.4), (-5.5, 0.9)])  # lines 32-35
add_polygon(sketch15, [(-7, -1.1), (-7, 0.4), (-5.5, 0.4), (-5.5, -1.1)])  # lines 36-39
add_polygon(sketch15, [(-7, -3.4), (-7, -1.9), (-5.5, -1.9), (-5.5, -3.4)])  # lines 40-43
add_polygon(sketch15, [(-7, -5.4), (-7, -3.9), (-5.5, -3.9), (-5.5, -5.4)])  # lines 44-47
add_polygon(sketch15, [(-1.5, -5.4), (-1.5, -3.9), (0, -3.9), (0, -5.4)])  # lines 48-51
add_polygon(sketch15, [(-1.5, -3.4), (-1.5, -1.9), (0, -1.9), (0, -3.4)])  # lines 52-55
add_polygon(sketch15, [(-1.5, -1.1), (-1.5, 0.4), (0, 0.4), (0, -1.1)])  # lines 56-59
add_polygon(sketch15, [(-1.5, 0.9), (-1.5, 2.4), (0, 2.4), (0, 0.9)])  # lines 60-63
sketch15.addConstraint([
    Sketcher.Constraint("Vertical", 0),
    Sketcher.Constraint("Horizontal", 1),
    Sketcher.Constraint("Vertical", 2),
    Sketcher.Constraint("Horizontal", 3),
    Sketcher.Constraint("Vertical", 4),
    Sketcher.Constraint("Horizontal", 5),
    Sketcher.Constraint("Vertical", 6),
    Sketcher.Constraint("Horizontal", 7),
    Sketcher.Constraint("Vertical", 8),
    Sketcher.Constraint("Horizontal", 9),
    Sketcher.Constraint("Vertical", 10),
    Sketcher.Constraint("Horizontal", 11),
    Sketcher.Constraint("Vertical", 12),
    Sketcher.Constraint("Horizontal", 13),
    Sketcher.Constraint("Vertical", 14),
    Sketcher.Constraint("Horizontal", 15),
    Sketcher.Constraint("Vertical", 16),
    Sketcher.Constraint("Horizontal", 17),
    Sketcher.Constraint("Vertical", 18),
    Sketcher.Constraint("Horizontal", 19),
    Sketcher.Constraint("Vertical", 20),
    Sketcher.Constraint("Horizontal", 21),
    Sketcher.Constraint("Vertical", 22),
    Sketcher.Constraint("Horizontal", 23),
    Sketcher.Constraint("Vertical", 24),
    Sketcher.Constraint("Horizontal", 25),
    Sketcher.Constraint("Vertical", 26),
    Sketcher.Constraint("Horizontal", 27),
    Sketcher.Constraint("Vertical", 28),
    Sketcher.Constraint("Horizontal", 29),
    Sketcher.Constraint("Vertical", 30),
    Sketcher.Constraint("Horizontal", 31),
    Sketcher.Constraint("Vertical", 32),
    Sketcher.Constraint("Horizontal", 33),
    Sketcher.Constraint("Vertical", 34),
    Sketcher.Constraint("Horizontal", 35),
    Sketcher.Constraint("Vertical", 36),
    Sketcher.Constraint("Horizontal", 37),
    Sketcher.Constraint("Vertical", 38),
    Sketcher.Constraint("Horizontal", 39),
    Sketcher.Constraint("Vertical", 40),
    Sketcher.Constraint("Horizontal", 41),
    Sketcher.Constraint("Vertical", 42),
    Sketcher.Constraint("Horizontal", 43),
    Sketcher.Constraint("Vertical", 44),
    Sketcher.Constraint("Horizontal", 45),
    Sketcher.Constraint("Vertical", 46),
    Sketcher.Constraint("Horizontal", 47),
    Sketcher.Constraint("Vertical", 48),
    Sketcher.Constraint("Horizontal", 49),
    Sketcher.Constraint("Vertical", 50),
    Sketcher.Constraint("Horizontal", 51),
    Sketcher.Constraint("Vertical", 52),
    Sketcher.Constraint("Horizontal", 53),
    Sketcher.Constraint("Vertical", 54),
    Sketcher.Constraint("Horizontal", 55),
    Sketcher.Constraint("Vertical", 56),
    Sketcher.Constraint("Horizontal", 57),
    Sketcher.Constraint("Vertical", 58),
    Sketcher.Constraint("Horizontal", 59),
    Sketcher.Constraint("Vertical", 60),
    Sketcher.Constraint("Horizontal", 61),
    Sketcher.Constraint("Vertical", 62),
    Sketcher.Constraint("Horizontal", 63),
    Sketcher.Constraint("PointOnObject", 1, 2, -2),
    Sketcher.Constraint("PointOnObject", 5, 2, -2),
    Sketcher.Constraint("PointOnObject", 49, 2, -2),
    Sketcher.Constraint("PointOnObject", 61, 2, -2),
    Sketcher.Constraint("Horizontal", 1, 2, 16, 2),
    Sketcher.Constraint("Horizontal", 3, 2, 18, 2),
    Sketcher.Constraint("Horizontal", 9, 2, 20, 2),
    Sketcher.Constraint("Horizontal", 11, 2, 22, 2),
    Sketcher.Constraint("Horizontal", 13, 2, 24, 2),
    Sketcher.Constraint("Horizontal", 15, 2, 26, 2),
    Sketcher.Constraint("Horizontal", 5, 2, 28, 2),
    Sketcher.Constraint("Horizontal", 7, 2, 30, 2),
    Sketcher.Constraint("Horizontal", 45, 2, 48, 2),
    Sketcher.Constraint("Horizontal", 47, 2, 50, 2),
    Sketcher.Constraint("Horizontal", 41, 2, 52, 2),
    Sketcher.Constraint("Horizontal", 43, 2, 54, 2),
    Sketcher.Constraint("Horizontal", 37, 2, 56, 2),
    Sketcher.Constraint("Horizontal", 39, 2, 58, 2),
    Sketcher.Constraint("Horizontal", 33, 2, 60, 2),
    Sketcher.Constraint("Horizontal", 35, 2, 62, 2),
    Sketcher.Constraint("Vertical", 3, 2, 4, 2),
    Sketcher.Constraint("Vertical", 11, 2, 12, 2),
    Sketcher.Constraint("Vertical", 10, 2, 13, 2),
    Sketcher.Constraint("Vertical", 23, 2, 24, 2),
    Sketcher.Constraint("Vertical", 22, 2, 25, 2),
    Sketcher.Constraint("Vertical", 19, 2, 28, 2),
    Sketcher.Constraint("Vertical", 18, 2, 29, 2),
    Sketcher.Constraint("Vertical", 31, 2, 32, 2),
    Sketcher.Constraint("Vertical", 30, 2, 33, 2),
    Sketcher.Constraint("Vertical", 27, 2, 36, 2),
    Sketcher.Constraint("Vertical", 26, 2, 37, 2),
    Sketcher.Constraint("Vertical", 39, 2, 40, 2),
    Sketcher.Constraint("Vertical", 38, 2, 41, 2),
    Sketcher.Constraint("Vertical", 35, 2, 44, 2),
    Sketcher.Constraint("Vertical", 34, 2, 45, 2),
    Sketcher.Constraint("Vertical", 7, 2, 48, 2),
    Sketcher.Constraint("Vertical", 15, 2, 52, 2),
    Sketcher.Constraint("Vertical", 14, 2, 53, 2),
    Sketcher.Constraint("Vertical", 55, 2, 56, 2),
    Sketcher.Constraint("Vertical", 54, 2, 57, 2),
    Sketcher.Constraint("Vertical", 51, 2, 60, 2),
    Sketcher.Constraint("Equal", 7, 17),
    Sketcher.Constraint("Equal", 15, 21),
    Sketcher.Constraint("Equal", 63, 0),
    Sketcher.Constraint("Equal", 2, 4),
    Sketcher.Constraint("Equal", 6, 8),
    Sketcher.Constraint("Equal", 10, 12),
    Sketcher.Constraint("Equal", 30, 32),
    Sketcher.Constraint("Equal", 34, 36),
    Sketcher.Constraint("Equal", 38, 40),
    Sketcher.Constraint("Equal", 42, 44),
    Sketcher.Constraint("DistanceX", 1, 1, 1, 2, Q("1.5 mm")),
    Sketcher.Constraint("DistanceX", 16, 2, -1, 1, Q("7 mm")),
    Sketcher.Constraint("DistanceY", 0, 2, -1, 1, Q("6.6 mm")),
    Sketcher.Constraint("DistanceY", 4, 2, -1, 1, Q("12.9 mm")),
    Sketcher.Constraint("DistanceY", 8, 2, -1, 1, Q("8.6 mm")),
    Sketcher.Constraint("DistanceY", 12, 2, -1, 1, Q("10.9 mm")),
    Sketcher.Constraint("DistanceY", -1, 1, 32, 2, Q("2.4 mm")),
    Sketcher.Constraint("DistanceY", -1, 1, 36, 2, Q("0.4 mm")),
    Sketcher.Constraint("DistanceY", 40, 2, -1, 1, Q("1.9 mm")),
    Sketcher.Constraint("DistanceY", 44, 2, -1, 1, Q("3.9 mm")),
    Sketcher.Constraint("DistanceX", 9, 1, 9, 2, Q("1.525834 mm")),
    Sketcher.Constraint("DistanceX", 8, 2, -1, 1, Q("1.512917 mm")),
    Sketcher.Constraint("DistanceX", 20, 2, -1, 1, Q("7.012917 mm")),
])
pad13 = body.newObject("PartDesign::Pad", "Pad012")
pad13.Profile = sketch15
pad13.Length = 6.5
pad13.Reversed = True

# Sketch on XZ plane
sketch16 = body.newObject("Sketcher::SketchObject", "Sketch015")
sketch16.AttachmentSupport = (doc.getObject("XZ_Plane"), [""])
sketch16.MapMode = "FlatFace"
sketch16.AttachmentOffset = App.Placement(Vector(0, 0, -1.5), App.Rotation())
add_polygon(sketch16, [(-11.2, -13.1), (-11.2, 15.2), (-8.8, 15.2), (-8.8, -13.1)])  # lines 0-3
add_polygon(sketch16, [(-8.8, 15.1), (-11.2, 15.1), (-11.2, -13), (-8.8, -13)])  # lines 4-7
sketch16.addConstraint([
    Sketcher.Constraint("Vertical", 0),
    Sketcher.Constraint("Horizontal", 1),
    Sketcher.Constraint("Vertical", 2),
    Sketcher.Constraint("Horizontal", 3),
    Sketcher.Constraint("Horizontal", 4),
    Sketcher.Constraint("Vertical", 5),
    Sketcher.Constraint("Horizontal", 6),
    Sketcher.Constraint("Vertical", 7),
    Sketcher.Constraint("DistanceX", 1, 1, 1, 2, Q("2.5 mm")),
    Sketcher.Constraint("DistanceX", 4, 2, 4, 1, Q("2.3 mm")),
    Sketcher.Constraint("DistanceX", 0, 2, 4, 2, Q("0.1 mm")),
    Sketcher.Constraint("DistanceY", 4, 2, 0, 2, Q("0.1 mm")),
    Sketcher.Constraint("DistanceY", 3, 2, 5, 2, Q("0.1 mm")),
    Sketcher.Constraint("DistanceX", 0, 2, -1, 1, Q("11.25 mm")),
    Sketcher.Constraint("DistanceY", 0, 1, 0, 2, Q("28.321783 mm")),
    Sketcher.Constraint("DistanceY", -1, 1, 0, 2, Q("15.192748 mm")),
])
pocket3 = body.newObject("PartDesign::Pocket", "Pocket002")
pocket3.Profile = sketch16
pocket3.Length = 0.1
pocket3.Reversed = True

# Sketch on XY plane
sketch17 = body.newObject("Sketcher::SketchObject", "Sketch016")
sketch17.AttachmentSupport = (doc.getObject("XY_Plane"), [""])
sketch17.MapMode = "FlatFace"
sketch17.AttachmentOffset = App.Placement(Vector(0, 0, -16), App.Rotation())
add_polygon(sketch17, [(2, 6), (2, 2), (-8, 2), (-8, 6)])  # lines 0-3
sketch17.addConstraint([
    Sketcher.Constraint("Vertical", 0),
    Sketcher.Constraint("Horizontal", 1),
    Sketcher.Constraint("Vertical", 2),
    Sketcher.Constraint("Horizontal", 3),
    Sketcher.Constraint("DistanceX", 1, 2, 1, 1, Q("10 mm")),
    Sketcher.Constraint("DistanceY", 0, 2, 0, 1, Q("5 mm")),
    Sketcher.Constraint("DistanceX", -1, 1, 0, 2, Q("1.5 mm")),
    Sketcher.Constraint("DistanceY", -1, 1, 0, 2, Q("1.5 mm")),
])
pocket4 = body.newObject("PartDesign::Pocket", "Pocket003")
pocket4.Profile = sketch17
pocket4.Length = 0.1
pocket4.Reversed = True

# Sketch on XY plane
sketch18 = body.newObject("Sketcher::SketchObject", "Sketch017")
sketch18.AttachmentSupport = (doc.getObject("XY_Plane"), [""])
sketch18.MapMode = "FlatFace"
sketch18.AttachmentOffset = App.Placement(Vector(0, 0, -16), App.Rotation())
add_polygon(sketch18, [(6.4, 8.5), (6.4, 1.5), (1.6, 1.5), (1.6, 8.5)])  # lines 0-3
sketch18.addConstraint([
    Sketcher.Constraint("Vertical", 0),
    Sketcher.Constraint("Horizontal", 1),
    Sketcher.Constraint("Vertical", 2),
    Sketcher.Constraint("Horizontal", 3),
    Sketcher.Constraint("DistanceY", 0, 2, 0, 1, Q("7 mm")),
    Sketcher.Constraint("DistanceY", -1, 1, 0, 2, Q("1.5 mm")),
    Sketcher.Constraint("DistanceX", 1, 2, 1, 1, Q("4.871859 mm")),
    Sketcher.Constraint("DistanceX", -1, 1, 0, 2, Q("6.43593 mm")),
])
pocket5 = body.newObject("PartDesign::Pocket", "Pocket004")
pocket5.Profile = sketch18
pocket5.Length = 0.1
pocket5.Reversed = True

doc.recompute()
